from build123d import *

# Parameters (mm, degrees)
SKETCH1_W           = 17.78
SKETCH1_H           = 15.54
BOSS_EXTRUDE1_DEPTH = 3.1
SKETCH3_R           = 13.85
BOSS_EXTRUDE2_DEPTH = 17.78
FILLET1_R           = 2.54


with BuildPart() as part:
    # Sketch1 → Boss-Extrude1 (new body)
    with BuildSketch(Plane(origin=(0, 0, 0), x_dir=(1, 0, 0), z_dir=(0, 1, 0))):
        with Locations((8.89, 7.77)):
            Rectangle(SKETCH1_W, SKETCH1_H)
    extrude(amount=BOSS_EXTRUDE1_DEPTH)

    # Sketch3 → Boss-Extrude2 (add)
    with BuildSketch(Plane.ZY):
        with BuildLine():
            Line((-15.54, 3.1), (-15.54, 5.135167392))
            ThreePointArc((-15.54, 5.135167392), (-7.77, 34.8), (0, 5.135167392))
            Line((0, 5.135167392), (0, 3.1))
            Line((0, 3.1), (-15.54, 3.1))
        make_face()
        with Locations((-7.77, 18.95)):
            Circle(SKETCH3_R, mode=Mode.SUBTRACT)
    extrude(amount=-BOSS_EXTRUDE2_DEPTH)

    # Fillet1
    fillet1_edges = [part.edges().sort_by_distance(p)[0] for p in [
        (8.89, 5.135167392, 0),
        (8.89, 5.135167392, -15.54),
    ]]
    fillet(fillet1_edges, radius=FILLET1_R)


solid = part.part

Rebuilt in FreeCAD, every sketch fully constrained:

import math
import FreeCAD as App
import Part
import Sketcher


def edges_at(feature, points):
    """Names of the edges that pass closest to the given points."""
    edges = feature.Shape.Edges
    near = lambda p: min(range(len(edges)), key=lambda i: edges[i].distToShape(Part.Vertex(*p))[0])
    return sorted({f"Edge{near(p) + 1}" for p in points})

doc = App.newDocument("Part")
params = doc.addObject("Spreadsheet::Sheet", "Params")
for row, (alias, value) in enumerate([
    ("sketch1_width", "17.78 mm"),
    ("sketch1_height", "15.54 mm"),
    ("pad1_length", "3.1 mm"),
    ("sketch2_diameter", "27.7 mm"),
    ("sketch2_radius", "15.85 mm"),
    ("sketch2_height", "15.54 mm"),
    ("pad2_length", "17.78 mm"),
    ("fillet_radius", "2.54 mm"),
], start=1):
    params.set(f"A{row}", alias)
    params.set(f"B{row}", "=" + value)
    params.setAlias(f"B{row}", alias)

body = doc.addObject("PartDesign::Body", "Body")

# Sketch on XZ plane
sketch1 = body.newObject("Sketcher::SketchObject", "Sketch")
sketch1.AttachmentSupport = (doc.getObject("XZ_Plane"), [""])
sketch1.MapMode = "FlatFace"
sketch1.addGeometry([
    Part.LineSegment(App.Vector(0, -16, 0), App.Vector(0, 0, 0)),
    Part.LineSegment(App.Vector(0, 0, 0), App.Vector(18, 0, 0)),
    Part.LineSegment(App.Vector(18, 0, 0), App.Vector(18, -16, 0)),
    Part.LineSegment(App.Vector(18, -16, 0), App.Vector(0, -16, 0)),
], False)
sketch1.addConstraint([
    Sketcher.Constraint("Coincident", 0, 2, 1, 1),
    Sketcher.Constraint("Coincident", 1, 2, 2, 1),
    Sketcher.Constraint("Coincident", 2, 2, 3, 1),
    Sketcher.Constraint("Coincident", 3, 2, 0, 1),
    Sketcher.Constraint("Vertical", 0),
    Sketcher.Constraint("Horizontal", 1),
    Sketcher.Constraint("Vertical", 2),
    Sketcher.Constraint("Horizontal", 3),
    Sketcher.Constraint("Coincident", 0, 2, -1, 1),
    Sketcher.Constraint("DistanceX", 1, 1, 1, 2, 17.78),
    Sketcher.Constraint("DistanceY", 0, 1, 0, 2, 15.54),
])
sketch1.setExpression("Constraints[9]", "Params.sketch1_width")
sketch1.setExpression("Constraints[10]", "Params.sketch1_height")
pad1 = body.newObject("PartDesign::Pad", "Pad")
pad1.Profile = sketch1
pad1.setExpression("Length", "Params.pad1_length")
pad1.Reversed = True

# Sketch on YZ plane
sketch2 = body.newObject("Sketcher::SketchObject", "Sketch001")
sketch2.AttachmentSupport = (doc.getObject("YZ_Plane"), [""])
sketch2.MapMode = "FlatFace"
sketch2.addGeometry([
    Part.LineSegment(App.Vector(5.1, -15.5, 0), App.Vector(3.1, -15.5, 0)),  # 0
    Part.LineSegment(App.Vector(3.1, -15.5, 0), App.Vector(3.1, 0, 0)),  # 1
    Part.LineSegment(App.Vector(3.1, 0, 0), App.Vector(5.1, 0, 0)),  # 2
    Part.ArcOfCircle(Part.Circle(App.Vector(18.9, -7.8, 0), App.Vector(0, 0, 1), 15.8), math.radians(-151), math.radians(151)),  # 3
    Part.Circle(App.Vector(18.9, -7.8, 0), App.Vector(0, 0, 1), 13.8),  # 4
], False)
sketch2.addConstraint([
    Sketcher.Constraint("Coincident", 0, 2, 1, 1),
    Sketcher.Constraint("Coincident", 1, 2, 2, 1),
    Sketcher.Constraint("Coincident", 2, 2, 3, 2),
    Sketcher.Constraint("Coincident", 3, 1, 0, 1),
    Sketcher.Constraint("Horizontal", 0),
    Sketcher.Constraint("Vertical", 1),
    Sketcher.Constraint("Horizontal", 2),
    Sketcher.Constraint("Coincident", 4, 3, 3, 3),
    Sketcher.Constraint("PointOnObject", 1, 2, -1),
    Sketcher.Constraint("Vertical", 2, 2, 3, 1),
    Sketcher.Constraint("Diameter", 4, 27.7),
    Sketcher.Constraint("Radius", 3, 15.85),
    Sketcher.Constraint("DistanceY", 1, 1, 1, 2, 15.54),
    Sketcher.Constraint("DistanceX", -1, 1, 0, 2, 3.1),
    Sketcher.Constraint("DistanceX", -1, 1, 3, 3, 18.95),
])
sketch2.setExpression("Constraints[10]", "Params.sketch2_diameter")
sketch2.setExpression("Constraints[11]", "Params.sketch2_radius")
sketch2.setExpression("Constraints[12]", "Params.sketch2_height")
pad2 = body.newObject("PartDesign::Pad", "Pad001")
pad2.Profile = sketch2
pad2.setExpression("Length", "Params.pad2_length")
doc.recompute()

fillet = body.newObject("PartDesign::Fillet", "Fillet")
fillet.Base = (pad2, edges_at(pad2, [(8.89, 5.135, 0), (8.89, 5.135, -15.54)]))
fillet.setExpression("Radius", "Params.fillet_radius")

doc.recompute()
